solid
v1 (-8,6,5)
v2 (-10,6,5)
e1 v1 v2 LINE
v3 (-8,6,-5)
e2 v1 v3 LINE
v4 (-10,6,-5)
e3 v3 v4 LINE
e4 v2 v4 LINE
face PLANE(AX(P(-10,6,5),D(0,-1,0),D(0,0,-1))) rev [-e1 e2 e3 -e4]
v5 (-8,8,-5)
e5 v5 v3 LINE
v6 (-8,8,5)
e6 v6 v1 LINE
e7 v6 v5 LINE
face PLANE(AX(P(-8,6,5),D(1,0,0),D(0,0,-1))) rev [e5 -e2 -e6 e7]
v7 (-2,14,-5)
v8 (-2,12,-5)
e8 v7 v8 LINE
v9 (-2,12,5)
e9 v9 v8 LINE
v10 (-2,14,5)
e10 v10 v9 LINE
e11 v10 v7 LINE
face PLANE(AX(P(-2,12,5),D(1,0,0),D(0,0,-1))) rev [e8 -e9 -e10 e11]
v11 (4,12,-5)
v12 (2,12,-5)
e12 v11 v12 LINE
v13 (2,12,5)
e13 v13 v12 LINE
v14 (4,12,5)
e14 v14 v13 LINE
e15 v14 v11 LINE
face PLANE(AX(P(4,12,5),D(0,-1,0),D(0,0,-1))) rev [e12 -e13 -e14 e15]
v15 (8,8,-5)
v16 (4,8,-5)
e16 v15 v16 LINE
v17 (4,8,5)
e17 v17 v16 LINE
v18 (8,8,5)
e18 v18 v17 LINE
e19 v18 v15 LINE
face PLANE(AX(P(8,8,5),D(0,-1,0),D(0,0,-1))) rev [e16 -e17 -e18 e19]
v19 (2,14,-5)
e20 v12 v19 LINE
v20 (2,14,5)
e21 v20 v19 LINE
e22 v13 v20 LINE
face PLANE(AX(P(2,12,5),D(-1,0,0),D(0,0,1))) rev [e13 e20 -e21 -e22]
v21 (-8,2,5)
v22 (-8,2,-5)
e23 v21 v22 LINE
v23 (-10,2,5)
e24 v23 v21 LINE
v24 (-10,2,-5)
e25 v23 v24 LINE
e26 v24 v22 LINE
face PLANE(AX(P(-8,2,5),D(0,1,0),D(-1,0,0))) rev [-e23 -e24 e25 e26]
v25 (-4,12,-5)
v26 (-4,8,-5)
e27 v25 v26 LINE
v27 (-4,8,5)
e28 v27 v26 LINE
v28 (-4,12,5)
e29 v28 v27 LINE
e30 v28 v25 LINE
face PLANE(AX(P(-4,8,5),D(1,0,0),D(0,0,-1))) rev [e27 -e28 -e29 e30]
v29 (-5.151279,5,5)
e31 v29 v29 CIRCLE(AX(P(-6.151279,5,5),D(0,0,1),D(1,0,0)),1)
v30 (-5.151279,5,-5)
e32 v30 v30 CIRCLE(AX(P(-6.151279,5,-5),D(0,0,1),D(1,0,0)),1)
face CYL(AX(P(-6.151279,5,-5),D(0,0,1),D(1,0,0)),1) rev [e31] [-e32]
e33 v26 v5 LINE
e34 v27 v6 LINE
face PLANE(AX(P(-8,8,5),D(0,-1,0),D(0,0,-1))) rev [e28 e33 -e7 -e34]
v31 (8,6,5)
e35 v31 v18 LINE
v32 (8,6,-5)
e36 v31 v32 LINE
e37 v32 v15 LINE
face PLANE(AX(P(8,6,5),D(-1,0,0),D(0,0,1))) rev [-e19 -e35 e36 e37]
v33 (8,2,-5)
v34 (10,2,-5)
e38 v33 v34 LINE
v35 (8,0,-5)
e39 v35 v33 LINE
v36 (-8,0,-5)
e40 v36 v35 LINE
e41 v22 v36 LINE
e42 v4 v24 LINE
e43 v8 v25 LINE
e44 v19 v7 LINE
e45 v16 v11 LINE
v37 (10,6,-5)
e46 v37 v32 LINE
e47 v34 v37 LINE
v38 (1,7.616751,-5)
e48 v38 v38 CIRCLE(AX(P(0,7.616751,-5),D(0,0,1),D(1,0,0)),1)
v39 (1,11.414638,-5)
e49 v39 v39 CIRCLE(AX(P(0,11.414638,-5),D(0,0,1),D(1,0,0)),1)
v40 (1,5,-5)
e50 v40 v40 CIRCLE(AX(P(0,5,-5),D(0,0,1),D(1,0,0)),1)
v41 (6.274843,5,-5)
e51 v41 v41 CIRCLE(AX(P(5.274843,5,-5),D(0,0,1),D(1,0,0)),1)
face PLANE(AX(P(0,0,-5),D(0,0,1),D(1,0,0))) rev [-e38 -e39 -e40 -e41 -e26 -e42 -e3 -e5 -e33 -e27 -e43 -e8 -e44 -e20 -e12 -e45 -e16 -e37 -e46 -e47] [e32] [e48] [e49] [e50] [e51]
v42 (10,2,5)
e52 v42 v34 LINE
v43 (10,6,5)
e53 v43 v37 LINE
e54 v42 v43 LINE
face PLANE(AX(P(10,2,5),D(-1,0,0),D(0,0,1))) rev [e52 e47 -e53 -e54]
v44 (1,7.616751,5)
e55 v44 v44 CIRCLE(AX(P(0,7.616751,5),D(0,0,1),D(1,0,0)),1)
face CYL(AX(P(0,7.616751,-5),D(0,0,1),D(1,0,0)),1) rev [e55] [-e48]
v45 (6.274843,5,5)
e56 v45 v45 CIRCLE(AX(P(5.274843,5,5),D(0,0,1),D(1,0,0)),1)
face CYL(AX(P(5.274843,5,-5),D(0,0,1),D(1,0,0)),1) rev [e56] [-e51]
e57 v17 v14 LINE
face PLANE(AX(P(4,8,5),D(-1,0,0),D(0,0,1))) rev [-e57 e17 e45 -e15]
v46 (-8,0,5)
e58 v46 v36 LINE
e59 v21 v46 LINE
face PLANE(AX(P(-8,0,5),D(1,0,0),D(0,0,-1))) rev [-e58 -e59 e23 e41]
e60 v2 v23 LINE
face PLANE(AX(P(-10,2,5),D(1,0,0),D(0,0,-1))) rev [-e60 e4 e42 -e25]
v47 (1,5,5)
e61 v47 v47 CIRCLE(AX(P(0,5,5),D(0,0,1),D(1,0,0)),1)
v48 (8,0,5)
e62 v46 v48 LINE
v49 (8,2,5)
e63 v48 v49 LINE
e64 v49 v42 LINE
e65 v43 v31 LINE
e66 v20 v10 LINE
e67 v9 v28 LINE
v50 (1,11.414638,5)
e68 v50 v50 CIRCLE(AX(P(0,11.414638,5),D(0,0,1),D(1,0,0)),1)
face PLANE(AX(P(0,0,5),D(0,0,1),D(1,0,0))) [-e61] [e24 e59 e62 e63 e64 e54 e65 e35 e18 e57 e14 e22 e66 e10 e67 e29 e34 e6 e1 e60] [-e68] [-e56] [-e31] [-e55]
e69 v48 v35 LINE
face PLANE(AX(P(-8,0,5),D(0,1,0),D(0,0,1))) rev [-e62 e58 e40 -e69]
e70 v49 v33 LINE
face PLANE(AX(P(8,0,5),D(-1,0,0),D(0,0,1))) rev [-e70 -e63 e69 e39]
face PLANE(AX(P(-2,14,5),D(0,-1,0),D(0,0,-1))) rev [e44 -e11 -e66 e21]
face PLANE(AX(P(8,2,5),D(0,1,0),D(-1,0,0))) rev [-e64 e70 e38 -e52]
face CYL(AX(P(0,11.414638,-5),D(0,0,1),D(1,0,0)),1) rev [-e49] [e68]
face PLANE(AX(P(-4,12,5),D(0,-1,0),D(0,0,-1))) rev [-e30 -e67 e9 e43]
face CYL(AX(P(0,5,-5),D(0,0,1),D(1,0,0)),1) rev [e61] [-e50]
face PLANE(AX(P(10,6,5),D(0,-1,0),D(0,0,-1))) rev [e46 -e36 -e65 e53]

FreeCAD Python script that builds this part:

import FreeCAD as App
import Part
import Sketcher

V = App.Vector
Q = App.Units.Quantity


def add_polygon(sketch, points):
    """Adds a closed chain of lines whose ends are joined by coincident constraints."""
    first, n = sketch.GeometryCount, len(points)
    for a, b in zip(points, points[1:] + points[:1]):
        sketch.addGeometry(Part.LineSegment(App.Vector(*a, 0), App.Vector(*b, 0)), False)
    for i in range(n):
        sketch.addConstraint(Sketcher.Constraint("Coincident", first + i, 2, first + (i + 1) % n, 1))

doc = App.newDocument("Part")
body = doc.addObject("PartDesign::Body", "Body")

# Sketch on XY plane
sketch1 = doc.addObject("Sketcher::SketchObject", "Sketch")
body.addObject(sketch1)
sketch1.AttachmentSupport = (doc.XY_Plane, [""])
sketch1.MapMode = "FlatFace"
add_polygon(sketch1, [(-8, 2), (-8, 0), (8, 0), (8, 2), (10, 2), (10, 6), (8, 6), (8, 8), (4, 8), (4, 12), (2, 12), (2, 14), (-2, 14), (-2, 12), (-4, 12), (-4, 8), (-8, 8), (-8, 6), (-10, 6), (-10, 2)])  # lines 0-19
sketch1.addConstraint([
    Sketcher.Constraint("Vertical", 0),
    Sketcher.Constraint("Horizontal", 1),
    Sketcher.Constraint("Vertical", 2),
    Sketcher.Constraint("Horizontal", 3),
    Sketcher.Constraint("Vertical", 4),
    Sketcher.Constraint("Horizontal", 5),
    Sketcher.Constraint("Vertical", 6),
    Sketcher.Constraint("Horizontal", 7),
    Sketcher.Constraint("Vertical", 8),
    Sketcher.Constraint("Horizontal", 9),
    Sketcher.Constraint("Vertical", 10),
    Sketcher.Constraint("Horizontal", 11),
    Sketcher.Constraint("Vertical", 12),
    Sketcher.Constraint("Horizontal", 13),
    Sketcher.Constraint("Vertical", 14),
    Sketcher.Constraint("Horizontal", 15),
    Sketcher.Constraint("Vertical", 16),
    Sketcher.Constraint("Horizontal", 17),
    Sketcher.Constraint("Vertical", 18),
    Sketcher.Constraint("Horizontal", 19),
    Sketcher.Constraint("Symmetric", 0, 2, 1, 2, -1, 1),
    Sketcher.Constraint("Symmetric", 9, 2, 12, 2, -2),
    Sketcher.Constraint("Symmetric", 7, 2, 14, 2, -2),
    Sketcher.Constraint("Symmetric", 5, 2, 16, 2, -2),
    Sketcher.Constraint("Symmetric", 3, 2, 18, 2, -2),
    Sketcher.Constraint("Vertical", 2, 2, 5, 2),
    Sketcher.Constraint("Equal", 5, 9),
    Sketcher.Constraint("Equal", 7, 11),
    Sketcher.Constraint("Equal", 19, 0),
    Sketcher.Constraint("Equal", 15, 4),
    Sketcher.Constraint("Equal", 2, 6),
    Sketcher.Constraint("Equal", 4, 8),
    Sketcher.Constraint("Equal", 6, 10),
    Sketcher.Constraint("DistanceX", 1, 1, 1, 2, Q("16 mm")),
    Sketcher.Constraint("DistanceX", 3, 1, 3, 2, Q("2 mm")),
])
pad1 = doc.addObject("PartDesign::Pad", "Pad")
body.addObject(pad1)
pad1.Profile = sketch1
pad1.Length = 10
pad1.Midplane = True

# Sketch on XY plane
sketch2 = doc.addObject("Sketcher::SketchObject", "Sketch001")
body.addObject(sketch2)
sketch2.AttachmentSupport = (doc.XY_Plane, [""])
sketch2.MapMode = "FlatFace"
sketch2.AttachmentOffset = App.Placement(V(0, 0, 5), App.Rotation())
sketch2.addGeometry([
    Part.Circle(V(0, 5, 0), V(0, 0, 1), 1),  # 0
    Part.Circle(V(0, 7.6, 0), V(0, 0, 1), 1),  # 1
    Part.Circle(V(0, 11.4, 0), V(0, 0, 1), 1),  # 2
    Part.Circle(V(-6.2, 5, 0), V(0, 0, 1), 1),  # 3
    Part.Circle(V(5.3, 5, 0), V(0, 0, 1), 1),  # 4
], False)
sketch2.addConstraint([
    Sketcher.Constraint("Equal", 0, 1),
    Sketcher.Constraint("Equal", 1, 2),
    Sketcher.Constraint("Equal", 2, 3),
    Sketcher.Constraint("Equal", 3, 4),
    Sketcher.Constraint("PointOnObject", 0, 3, -2),
    Sketcher.Constraint("PointOnObject", 1, 3, -2),
    Sketcher.Constraint("PointOnObject", 2, 3, -2),
    Sketcher.Constraint("Horizontal", 0, 3, 3, 3),
    Sketcher.Constraint("Horizontal", 3, 3, 4, 3),
    Sketcher.Constraint("Diameter", 0, Q("2 mm")),
    Sketcher.Constraint("DistanceY", -1, 1, 0, 3, Q("5 mm")),
    Sketcher.Constraint("DistanceY", -1, 1, 1, 3, Q("7.616751 mm")),
    Sketcher.Constraint("DistanceY", -1, 1, 2, 3, Q("11.414638 mm")),
    Sketcher.Constraint("DistanceX", 3, 3, -1, 1, Q("6.151279 mm")),
    Sketcher.Constraint("DistanceX", -1, 1, 4, 3, Q("5.274843 mm")),
])
pocket1 = doc.addObject("PartDesign::Pocket", "Pocket")
body.addObject(pocket1)
pocket1.Profile = sketch2
pocket1.Length = 10

doc.recompute()
